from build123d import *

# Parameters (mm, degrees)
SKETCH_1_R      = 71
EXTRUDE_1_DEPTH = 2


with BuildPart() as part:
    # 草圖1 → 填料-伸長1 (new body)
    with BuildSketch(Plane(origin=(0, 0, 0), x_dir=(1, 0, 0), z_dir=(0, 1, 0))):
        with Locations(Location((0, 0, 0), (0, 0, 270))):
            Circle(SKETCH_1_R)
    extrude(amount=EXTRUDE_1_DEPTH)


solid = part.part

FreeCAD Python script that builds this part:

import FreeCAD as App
import Part
import Sketcher
from FreeCAD import Vector

doc = App.newDocument("Part")
body = doc.addObject("PartDesign::Body", "Body")

# Sketch on XZ plane
sketch1 = doc.addObject("Sketcher::SketchObject", "Sketch")
body.addObject(sketch1)
sketch1.AttachmentSupport = (doc.XZ_Plane, [""])
sketch1.MapMode = "FlatFace"
sketch1.addGeometry(Part.Circle(Vector(0, 0, 0), Vector(0, 0, 1), 71), False)
sketch1.addConstraint(Sketcher.Constraint("Coincident", 0, 3, -1, 1))
sketch1.addConstraint(Sketcher.Constraint("Diameter", 0, 142.0))
pad1 = doc.addObject("PartDesign::Pad", "Pad")
body.addObject(pad1)
pad1.Profile = sketch1
pad1.Length = 2
pad1.Reversed = True

doc.recompute()
